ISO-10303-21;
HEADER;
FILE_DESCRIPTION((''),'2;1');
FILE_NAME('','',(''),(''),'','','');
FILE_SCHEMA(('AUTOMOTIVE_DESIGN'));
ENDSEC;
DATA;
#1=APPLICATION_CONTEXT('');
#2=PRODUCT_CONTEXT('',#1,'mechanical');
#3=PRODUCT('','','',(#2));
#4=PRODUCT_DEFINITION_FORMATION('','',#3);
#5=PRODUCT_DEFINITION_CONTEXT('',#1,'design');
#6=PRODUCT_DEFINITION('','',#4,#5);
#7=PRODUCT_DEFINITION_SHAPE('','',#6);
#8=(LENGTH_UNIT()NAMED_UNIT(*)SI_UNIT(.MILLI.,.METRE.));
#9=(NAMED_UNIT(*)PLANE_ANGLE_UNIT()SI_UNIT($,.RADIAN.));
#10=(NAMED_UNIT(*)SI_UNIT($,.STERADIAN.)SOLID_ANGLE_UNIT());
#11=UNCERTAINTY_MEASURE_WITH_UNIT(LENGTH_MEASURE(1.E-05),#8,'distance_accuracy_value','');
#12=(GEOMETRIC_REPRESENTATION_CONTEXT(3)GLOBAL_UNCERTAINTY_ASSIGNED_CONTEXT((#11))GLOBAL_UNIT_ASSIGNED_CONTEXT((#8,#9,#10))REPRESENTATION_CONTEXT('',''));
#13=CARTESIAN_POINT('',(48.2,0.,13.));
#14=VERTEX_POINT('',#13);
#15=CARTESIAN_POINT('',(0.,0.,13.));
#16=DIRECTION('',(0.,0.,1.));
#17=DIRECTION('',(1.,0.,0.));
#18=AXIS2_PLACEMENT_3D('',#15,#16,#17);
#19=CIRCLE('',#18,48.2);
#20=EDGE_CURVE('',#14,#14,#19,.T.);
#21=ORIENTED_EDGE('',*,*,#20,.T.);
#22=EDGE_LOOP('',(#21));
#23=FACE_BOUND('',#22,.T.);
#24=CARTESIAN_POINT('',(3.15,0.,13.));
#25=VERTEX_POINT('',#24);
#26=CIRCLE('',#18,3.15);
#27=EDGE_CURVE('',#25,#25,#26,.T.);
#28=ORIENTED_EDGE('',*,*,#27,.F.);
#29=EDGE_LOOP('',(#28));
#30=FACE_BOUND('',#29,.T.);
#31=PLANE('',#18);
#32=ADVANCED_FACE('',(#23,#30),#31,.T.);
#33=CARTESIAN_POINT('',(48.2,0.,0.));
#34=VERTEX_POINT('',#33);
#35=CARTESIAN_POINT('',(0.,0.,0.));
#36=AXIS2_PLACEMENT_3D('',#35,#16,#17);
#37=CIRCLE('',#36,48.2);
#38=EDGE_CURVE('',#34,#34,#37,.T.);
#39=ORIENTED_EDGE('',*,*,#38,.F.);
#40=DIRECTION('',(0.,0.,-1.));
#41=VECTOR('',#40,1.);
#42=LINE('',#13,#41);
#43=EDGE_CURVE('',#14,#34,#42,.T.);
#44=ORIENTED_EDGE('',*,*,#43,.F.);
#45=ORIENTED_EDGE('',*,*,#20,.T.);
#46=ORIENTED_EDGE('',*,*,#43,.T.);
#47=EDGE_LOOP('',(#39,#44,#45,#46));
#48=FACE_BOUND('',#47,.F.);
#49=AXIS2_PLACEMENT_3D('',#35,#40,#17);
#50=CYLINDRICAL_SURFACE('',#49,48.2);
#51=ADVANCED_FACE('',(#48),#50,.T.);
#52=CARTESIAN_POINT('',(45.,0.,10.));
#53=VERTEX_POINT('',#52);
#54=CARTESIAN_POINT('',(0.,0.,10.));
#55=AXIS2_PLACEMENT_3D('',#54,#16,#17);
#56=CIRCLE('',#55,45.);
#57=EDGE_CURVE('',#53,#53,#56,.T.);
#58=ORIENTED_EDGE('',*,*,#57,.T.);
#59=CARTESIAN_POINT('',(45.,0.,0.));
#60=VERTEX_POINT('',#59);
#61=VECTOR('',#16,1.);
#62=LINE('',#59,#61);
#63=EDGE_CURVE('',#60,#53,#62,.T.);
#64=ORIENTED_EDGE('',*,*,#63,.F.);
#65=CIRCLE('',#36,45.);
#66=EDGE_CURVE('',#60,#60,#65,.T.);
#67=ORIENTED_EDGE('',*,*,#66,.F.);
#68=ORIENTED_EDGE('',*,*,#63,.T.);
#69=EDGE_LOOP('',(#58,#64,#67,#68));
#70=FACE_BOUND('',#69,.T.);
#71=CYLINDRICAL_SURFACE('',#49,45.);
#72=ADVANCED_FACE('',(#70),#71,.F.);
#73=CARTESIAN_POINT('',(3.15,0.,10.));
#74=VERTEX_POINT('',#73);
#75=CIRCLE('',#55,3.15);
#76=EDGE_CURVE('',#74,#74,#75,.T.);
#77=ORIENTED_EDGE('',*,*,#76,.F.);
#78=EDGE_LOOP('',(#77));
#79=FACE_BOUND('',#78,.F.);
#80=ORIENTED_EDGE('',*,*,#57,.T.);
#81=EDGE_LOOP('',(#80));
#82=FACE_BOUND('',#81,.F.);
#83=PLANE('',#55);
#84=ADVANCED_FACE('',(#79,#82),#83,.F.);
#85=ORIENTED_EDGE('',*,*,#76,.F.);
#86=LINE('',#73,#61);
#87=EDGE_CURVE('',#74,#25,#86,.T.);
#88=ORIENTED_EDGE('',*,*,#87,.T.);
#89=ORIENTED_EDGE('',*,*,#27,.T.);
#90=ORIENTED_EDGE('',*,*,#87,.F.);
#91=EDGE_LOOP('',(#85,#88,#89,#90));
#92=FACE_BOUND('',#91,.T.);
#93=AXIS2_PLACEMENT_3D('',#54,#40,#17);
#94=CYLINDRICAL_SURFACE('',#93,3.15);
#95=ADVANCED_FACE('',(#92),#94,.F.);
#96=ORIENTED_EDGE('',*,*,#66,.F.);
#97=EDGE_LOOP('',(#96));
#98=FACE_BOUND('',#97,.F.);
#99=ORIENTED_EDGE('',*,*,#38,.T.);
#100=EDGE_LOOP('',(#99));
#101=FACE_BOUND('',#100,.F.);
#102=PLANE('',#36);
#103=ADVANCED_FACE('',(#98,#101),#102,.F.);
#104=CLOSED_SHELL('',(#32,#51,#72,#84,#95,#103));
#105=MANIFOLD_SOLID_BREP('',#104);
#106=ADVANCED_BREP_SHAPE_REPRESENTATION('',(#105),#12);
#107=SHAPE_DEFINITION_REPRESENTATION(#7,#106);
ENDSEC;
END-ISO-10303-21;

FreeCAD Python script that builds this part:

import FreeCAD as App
import Part
import Sketcher
from FreeCAD import Vector

doc = App.newDocument("Part")
body = doc.addObject("PartDesign::Body", "Body")

# Sketch on XY plane
sketch1 = doc.addObject("Sketcher::SketchObject", "Sketch")
body.addObject(sketch1)
sketch1.AttachmentSupport = (doc.XY_Plane, [""])
sketch1.MapMode = "FlatFace"
sketch1.addGeometry([
    Part.Circle(Vector(0, 0, 0), Vector(0, 0, 1), 48),
    Part.Circle(Vector(0, 0, 0), Vector(0, 0, 1), 45),
], False)
sketch1.addConstraint([
    Sketcher.Constraint("Coincident", 0, 3, -1, 1),
    Sketcher.Constraint("Coincident", 1, 3, -1, 1),
    Sketcher.Constraint("Diameter", 1, 90.0),
    Sketcher.Constraint("Diameter", 0, 96.4),
])
pad1 = doc.addObject("PartDesign::Pad", "Pad")
body.addObject(pad1)
pad1.Profile = sketch1
pad1.Length = 10

# Sketch on XY plane
sketch2 = doc.addObject("Sketcher::SketchObject", "Sketch001")
body.addObject(sketch2)
sketch2.AttachmentSupport = (doc.XY_Plane, [""])
sketch2.MapMode = "FlatFace"
sketch2.AttachmentOffset = App.Placement(Vector(0, 0, 10), App.Rotation())
sketch2.addGeometry([
    Part.Circle(Vector(0, 0, 0), Vector(0, 0, 1), 48.2),
    Part.Circle(Vector(0, 0, 0), Vector(0, 0, 1), 3.1),
], False)
sketch2.addConstraint([
    Sketcher.Constraint("Coincident", 0, 3, -1, 1),
    Sketcher.Constraint("Coincident", 1, 3, -1, 1),
    Sketcher.Constraint("Diameter", 1, 6.3),
    Sketcher.Constraint("Diameter", 0, 96.4),
])
pad2 = doc.addObject("PartDesign::Pad", "Pad001")
body.addObject(pad2)
pad2.Profile = sketch2
pad2.Length = 3

doc.recompute()
